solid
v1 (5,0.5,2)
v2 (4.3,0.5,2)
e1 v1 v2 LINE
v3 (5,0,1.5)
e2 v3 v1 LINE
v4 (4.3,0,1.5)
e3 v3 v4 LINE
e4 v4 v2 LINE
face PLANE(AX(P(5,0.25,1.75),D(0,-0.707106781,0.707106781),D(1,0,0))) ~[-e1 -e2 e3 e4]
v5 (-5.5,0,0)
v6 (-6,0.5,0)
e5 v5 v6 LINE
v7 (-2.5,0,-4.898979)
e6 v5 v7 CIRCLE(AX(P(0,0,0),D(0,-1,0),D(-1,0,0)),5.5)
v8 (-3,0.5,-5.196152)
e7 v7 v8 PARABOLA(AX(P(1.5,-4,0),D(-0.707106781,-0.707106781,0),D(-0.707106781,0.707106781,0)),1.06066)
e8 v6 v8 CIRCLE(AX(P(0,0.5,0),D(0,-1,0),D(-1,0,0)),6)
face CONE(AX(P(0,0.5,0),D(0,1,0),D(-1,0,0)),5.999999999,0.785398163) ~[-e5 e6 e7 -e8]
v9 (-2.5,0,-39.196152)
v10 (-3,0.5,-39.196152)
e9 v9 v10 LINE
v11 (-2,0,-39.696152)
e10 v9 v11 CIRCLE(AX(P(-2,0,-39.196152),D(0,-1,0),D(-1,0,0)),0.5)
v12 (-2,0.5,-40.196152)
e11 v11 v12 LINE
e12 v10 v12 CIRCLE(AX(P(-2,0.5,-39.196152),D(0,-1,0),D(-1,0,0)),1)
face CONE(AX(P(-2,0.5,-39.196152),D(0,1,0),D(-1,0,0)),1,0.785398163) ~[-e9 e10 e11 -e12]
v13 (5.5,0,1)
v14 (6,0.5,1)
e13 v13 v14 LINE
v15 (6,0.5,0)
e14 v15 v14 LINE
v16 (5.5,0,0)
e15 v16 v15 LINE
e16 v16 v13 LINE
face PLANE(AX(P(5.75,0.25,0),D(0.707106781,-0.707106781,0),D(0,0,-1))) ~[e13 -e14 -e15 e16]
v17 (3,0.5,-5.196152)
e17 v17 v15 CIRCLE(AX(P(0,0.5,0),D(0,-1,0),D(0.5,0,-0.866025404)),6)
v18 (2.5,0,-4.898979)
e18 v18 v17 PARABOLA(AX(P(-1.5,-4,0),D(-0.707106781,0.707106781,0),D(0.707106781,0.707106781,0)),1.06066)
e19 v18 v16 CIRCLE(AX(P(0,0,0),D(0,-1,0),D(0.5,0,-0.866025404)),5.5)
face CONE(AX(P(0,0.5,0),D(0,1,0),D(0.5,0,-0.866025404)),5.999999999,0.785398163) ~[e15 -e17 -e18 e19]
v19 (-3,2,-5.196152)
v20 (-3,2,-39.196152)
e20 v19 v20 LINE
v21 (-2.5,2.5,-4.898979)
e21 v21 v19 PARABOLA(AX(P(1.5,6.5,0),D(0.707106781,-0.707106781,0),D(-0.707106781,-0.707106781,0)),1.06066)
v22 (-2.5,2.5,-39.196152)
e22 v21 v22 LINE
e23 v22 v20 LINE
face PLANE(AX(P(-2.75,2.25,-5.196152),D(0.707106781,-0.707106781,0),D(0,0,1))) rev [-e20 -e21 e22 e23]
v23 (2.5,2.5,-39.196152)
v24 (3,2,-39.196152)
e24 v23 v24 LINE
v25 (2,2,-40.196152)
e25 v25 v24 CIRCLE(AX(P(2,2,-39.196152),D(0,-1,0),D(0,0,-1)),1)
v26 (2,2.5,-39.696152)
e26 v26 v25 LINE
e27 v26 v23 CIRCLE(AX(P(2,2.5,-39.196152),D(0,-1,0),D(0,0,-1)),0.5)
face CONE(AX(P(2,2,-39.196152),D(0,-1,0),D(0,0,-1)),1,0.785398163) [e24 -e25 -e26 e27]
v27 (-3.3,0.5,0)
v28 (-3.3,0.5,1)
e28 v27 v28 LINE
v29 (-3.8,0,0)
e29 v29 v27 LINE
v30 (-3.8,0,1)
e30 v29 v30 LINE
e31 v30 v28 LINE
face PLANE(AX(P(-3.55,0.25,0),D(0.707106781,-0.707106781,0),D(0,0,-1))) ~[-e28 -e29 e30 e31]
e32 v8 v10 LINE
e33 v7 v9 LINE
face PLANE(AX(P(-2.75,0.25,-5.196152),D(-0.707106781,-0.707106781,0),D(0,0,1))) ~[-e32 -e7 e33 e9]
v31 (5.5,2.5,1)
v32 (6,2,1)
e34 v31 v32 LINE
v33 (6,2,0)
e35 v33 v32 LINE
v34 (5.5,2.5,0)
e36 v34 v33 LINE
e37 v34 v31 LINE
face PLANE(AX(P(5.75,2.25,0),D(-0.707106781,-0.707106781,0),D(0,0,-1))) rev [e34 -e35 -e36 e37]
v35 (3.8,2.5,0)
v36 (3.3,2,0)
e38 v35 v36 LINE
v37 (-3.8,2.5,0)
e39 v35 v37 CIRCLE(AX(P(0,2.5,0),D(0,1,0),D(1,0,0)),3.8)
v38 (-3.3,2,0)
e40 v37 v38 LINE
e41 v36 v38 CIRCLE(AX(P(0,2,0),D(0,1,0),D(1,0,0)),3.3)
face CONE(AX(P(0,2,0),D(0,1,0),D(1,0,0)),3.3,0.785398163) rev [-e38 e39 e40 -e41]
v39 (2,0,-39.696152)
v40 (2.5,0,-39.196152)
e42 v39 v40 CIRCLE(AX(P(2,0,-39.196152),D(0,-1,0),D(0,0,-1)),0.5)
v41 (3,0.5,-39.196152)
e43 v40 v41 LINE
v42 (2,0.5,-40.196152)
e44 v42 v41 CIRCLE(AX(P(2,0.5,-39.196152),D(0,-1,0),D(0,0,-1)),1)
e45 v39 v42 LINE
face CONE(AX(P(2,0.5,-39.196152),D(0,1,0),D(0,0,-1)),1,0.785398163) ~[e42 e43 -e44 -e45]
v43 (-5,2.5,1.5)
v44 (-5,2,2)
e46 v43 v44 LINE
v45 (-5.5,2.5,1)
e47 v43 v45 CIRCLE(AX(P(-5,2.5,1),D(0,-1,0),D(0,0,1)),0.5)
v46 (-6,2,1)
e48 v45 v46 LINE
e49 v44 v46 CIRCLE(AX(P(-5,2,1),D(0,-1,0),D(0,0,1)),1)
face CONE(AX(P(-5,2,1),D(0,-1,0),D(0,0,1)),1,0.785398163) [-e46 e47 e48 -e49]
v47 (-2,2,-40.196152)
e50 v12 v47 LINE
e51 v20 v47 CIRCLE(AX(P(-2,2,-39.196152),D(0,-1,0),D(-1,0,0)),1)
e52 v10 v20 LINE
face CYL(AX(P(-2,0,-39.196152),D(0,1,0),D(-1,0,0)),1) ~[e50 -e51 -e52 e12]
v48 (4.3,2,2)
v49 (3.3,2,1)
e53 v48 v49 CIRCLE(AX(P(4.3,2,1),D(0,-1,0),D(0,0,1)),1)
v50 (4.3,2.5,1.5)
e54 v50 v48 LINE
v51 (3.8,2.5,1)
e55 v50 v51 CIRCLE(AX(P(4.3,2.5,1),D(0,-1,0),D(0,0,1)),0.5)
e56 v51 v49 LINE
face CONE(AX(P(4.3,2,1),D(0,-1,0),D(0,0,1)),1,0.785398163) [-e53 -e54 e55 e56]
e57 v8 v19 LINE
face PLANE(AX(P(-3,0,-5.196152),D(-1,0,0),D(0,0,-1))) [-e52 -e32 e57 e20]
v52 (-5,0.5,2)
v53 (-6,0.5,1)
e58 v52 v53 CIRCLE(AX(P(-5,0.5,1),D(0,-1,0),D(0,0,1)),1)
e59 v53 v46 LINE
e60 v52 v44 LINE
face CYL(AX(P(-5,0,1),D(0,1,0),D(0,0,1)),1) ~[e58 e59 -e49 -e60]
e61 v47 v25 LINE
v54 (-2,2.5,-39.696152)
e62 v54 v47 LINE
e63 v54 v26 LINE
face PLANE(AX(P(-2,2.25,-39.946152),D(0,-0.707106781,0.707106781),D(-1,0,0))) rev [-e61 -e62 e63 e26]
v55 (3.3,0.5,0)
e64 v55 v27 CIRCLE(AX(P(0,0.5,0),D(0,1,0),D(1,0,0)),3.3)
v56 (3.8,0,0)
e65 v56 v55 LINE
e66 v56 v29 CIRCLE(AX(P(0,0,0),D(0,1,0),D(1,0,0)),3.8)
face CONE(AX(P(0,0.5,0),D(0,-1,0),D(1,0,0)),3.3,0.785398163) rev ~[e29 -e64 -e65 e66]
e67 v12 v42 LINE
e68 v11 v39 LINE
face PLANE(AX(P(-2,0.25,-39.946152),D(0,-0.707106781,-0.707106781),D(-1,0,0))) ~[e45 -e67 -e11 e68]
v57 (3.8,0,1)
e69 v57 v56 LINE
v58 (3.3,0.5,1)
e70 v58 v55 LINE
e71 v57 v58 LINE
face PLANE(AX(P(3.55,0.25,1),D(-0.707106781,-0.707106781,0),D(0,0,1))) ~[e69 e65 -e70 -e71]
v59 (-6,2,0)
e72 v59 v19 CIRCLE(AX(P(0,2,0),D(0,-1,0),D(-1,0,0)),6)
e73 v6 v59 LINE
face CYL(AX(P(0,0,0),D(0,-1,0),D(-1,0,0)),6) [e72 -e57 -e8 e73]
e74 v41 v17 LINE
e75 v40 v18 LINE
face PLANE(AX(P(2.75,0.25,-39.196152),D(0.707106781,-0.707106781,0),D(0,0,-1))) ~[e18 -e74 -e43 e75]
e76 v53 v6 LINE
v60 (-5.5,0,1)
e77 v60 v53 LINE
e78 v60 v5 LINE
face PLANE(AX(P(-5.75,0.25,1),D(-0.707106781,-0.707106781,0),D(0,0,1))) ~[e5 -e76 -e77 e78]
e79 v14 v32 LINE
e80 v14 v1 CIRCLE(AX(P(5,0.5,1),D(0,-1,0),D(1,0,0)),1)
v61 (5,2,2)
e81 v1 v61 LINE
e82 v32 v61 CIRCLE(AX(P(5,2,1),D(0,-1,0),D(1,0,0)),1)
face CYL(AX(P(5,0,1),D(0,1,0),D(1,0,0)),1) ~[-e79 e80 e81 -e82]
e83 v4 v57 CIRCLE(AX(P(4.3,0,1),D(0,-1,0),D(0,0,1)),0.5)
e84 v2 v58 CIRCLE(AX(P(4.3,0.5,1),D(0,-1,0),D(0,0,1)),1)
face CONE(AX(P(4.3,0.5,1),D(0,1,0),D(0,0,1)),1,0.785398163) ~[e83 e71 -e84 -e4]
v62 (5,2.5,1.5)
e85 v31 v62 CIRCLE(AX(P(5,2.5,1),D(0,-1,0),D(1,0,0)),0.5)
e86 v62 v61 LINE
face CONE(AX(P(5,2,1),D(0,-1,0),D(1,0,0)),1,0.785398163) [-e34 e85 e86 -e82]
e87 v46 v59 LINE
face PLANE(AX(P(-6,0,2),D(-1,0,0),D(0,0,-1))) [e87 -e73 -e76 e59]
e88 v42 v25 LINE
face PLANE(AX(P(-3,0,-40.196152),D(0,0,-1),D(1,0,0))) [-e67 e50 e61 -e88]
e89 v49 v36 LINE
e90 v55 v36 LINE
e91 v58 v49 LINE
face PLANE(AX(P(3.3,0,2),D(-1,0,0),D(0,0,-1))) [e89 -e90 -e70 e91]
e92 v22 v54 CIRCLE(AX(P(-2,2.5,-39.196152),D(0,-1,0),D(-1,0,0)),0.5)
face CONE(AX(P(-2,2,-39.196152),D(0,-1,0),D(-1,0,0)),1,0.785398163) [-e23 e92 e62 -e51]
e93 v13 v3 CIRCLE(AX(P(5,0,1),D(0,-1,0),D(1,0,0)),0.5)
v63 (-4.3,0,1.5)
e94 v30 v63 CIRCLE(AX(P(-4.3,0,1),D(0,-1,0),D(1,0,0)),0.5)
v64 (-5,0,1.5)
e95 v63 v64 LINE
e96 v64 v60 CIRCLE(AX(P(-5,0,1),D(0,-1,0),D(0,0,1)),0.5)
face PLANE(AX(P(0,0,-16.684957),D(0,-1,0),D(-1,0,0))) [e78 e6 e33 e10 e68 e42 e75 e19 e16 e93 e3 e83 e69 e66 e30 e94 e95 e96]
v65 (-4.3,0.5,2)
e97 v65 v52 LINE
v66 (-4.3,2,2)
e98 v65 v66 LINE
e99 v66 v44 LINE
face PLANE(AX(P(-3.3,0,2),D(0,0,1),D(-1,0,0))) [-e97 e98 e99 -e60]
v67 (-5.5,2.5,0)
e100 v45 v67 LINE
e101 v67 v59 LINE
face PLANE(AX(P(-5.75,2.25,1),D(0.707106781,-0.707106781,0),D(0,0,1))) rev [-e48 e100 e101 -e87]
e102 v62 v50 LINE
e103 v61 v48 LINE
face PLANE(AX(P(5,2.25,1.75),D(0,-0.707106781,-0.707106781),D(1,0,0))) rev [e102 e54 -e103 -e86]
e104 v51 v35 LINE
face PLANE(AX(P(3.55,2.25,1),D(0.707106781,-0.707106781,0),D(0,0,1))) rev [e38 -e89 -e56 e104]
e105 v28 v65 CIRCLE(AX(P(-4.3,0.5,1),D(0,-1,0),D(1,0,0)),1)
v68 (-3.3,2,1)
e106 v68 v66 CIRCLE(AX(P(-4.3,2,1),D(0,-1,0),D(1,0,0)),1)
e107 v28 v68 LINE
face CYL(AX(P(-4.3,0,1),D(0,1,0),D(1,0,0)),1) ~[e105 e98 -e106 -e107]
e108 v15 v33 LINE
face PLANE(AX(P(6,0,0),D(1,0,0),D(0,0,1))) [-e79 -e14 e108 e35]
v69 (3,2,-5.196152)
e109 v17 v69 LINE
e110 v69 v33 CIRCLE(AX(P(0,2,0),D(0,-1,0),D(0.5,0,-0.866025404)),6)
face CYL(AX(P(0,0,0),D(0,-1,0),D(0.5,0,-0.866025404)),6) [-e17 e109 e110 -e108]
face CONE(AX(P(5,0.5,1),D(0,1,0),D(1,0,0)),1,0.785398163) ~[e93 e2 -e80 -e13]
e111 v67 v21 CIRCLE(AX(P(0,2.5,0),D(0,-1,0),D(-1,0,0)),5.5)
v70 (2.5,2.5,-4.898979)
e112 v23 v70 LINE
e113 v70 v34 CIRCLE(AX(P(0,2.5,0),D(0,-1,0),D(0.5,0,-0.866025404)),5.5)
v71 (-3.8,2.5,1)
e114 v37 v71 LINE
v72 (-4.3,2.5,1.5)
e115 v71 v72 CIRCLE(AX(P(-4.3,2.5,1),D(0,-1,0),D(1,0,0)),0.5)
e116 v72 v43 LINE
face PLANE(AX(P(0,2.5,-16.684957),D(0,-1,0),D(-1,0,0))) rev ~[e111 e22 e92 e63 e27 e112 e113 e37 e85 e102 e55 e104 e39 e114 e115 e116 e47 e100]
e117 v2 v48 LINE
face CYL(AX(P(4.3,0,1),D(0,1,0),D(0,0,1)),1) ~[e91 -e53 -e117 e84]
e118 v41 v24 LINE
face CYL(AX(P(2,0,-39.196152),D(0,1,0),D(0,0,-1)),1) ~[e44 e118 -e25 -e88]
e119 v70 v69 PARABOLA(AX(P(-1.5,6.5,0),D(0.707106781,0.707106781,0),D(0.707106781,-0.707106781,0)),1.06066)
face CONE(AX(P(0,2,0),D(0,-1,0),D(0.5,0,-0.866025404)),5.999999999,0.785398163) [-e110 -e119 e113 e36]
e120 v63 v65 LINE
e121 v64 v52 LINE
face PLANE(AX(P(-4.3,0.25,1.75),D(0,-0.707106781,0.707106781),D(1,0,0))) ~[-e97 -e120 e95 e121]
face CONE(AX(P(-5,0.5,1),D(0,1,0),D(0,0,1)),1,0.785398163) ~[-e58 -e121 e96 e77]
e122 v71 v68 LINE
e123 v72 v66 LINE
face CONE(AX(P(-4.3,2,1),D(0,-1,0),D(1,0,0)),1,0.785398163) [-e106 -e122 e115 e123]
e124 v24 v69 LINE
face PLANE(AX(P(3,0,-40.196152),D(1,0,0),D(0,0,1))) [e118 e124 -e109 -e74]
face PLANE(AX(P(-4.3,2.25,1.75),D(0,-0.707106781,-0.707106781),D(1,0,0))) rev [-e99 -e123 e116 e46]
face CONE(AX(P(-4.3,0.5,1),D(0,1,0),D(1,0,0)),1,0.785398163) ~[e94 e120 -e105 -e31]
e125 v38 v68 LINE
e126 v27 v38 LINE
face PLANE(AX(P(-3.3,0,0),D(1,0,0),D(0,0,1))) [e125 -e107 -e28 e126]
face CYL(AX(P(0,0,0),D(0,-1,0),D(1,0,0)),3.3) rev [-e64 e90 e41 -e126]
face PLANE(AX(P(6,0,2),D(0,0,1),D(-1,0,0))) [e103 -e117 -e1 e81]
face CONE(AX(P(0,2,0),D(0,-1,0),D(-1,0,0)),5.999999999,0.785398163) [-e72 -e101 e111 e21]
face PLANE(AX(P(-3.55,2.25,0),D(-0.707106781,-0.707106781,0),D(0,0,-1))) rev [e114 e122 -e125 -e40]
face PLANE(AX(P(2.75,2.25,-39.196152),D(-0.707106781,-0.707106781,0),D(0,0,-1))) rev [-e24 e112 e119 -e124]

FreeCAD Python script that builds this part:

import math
import FreeCAD as App
import Part
import Sketcher


def edges_at(feature, points):
    """Names of the edges that pass closest to the given points."""
    edges = feature.Shape.Edges
    near = lambda p: min(range(len(edges)), key=lambda i: edges[i].distToShape(Part.Vertex(*p))[0])
    return sorted({f"Edge{near(p) + 1}" for p in points})

doc = App.newDocument("Part")
params = doc.addObject("Spreadsheet::Sheet", "Params")
for row, (alias, value) in enumerate([
    ("sketch1_radius", "6 mm"),
    ("sketch1_radius2", "3.3 mm"),
    ("sketch1_width", "6 mm"),
    ("sketch1_height", "2 mm"),
    ("sketch1_height2", "35 mm"),
    ("pad1_length", "2.5 mm"),
    ("fillet_radius", "1 mm"),
    ("chamfer_size", "0.5 mm"),
], start=1):
    params.set(f"A{row}", alias)
    params.set(f"B{row}", "=" + value)
    params.setAlias(f"B{row}", alias)

body = doc.addObject("PartDesign::Body", "Body")

sketch1 = body.newObject("Sketcher::SketchObject", "Sketch")
sketch1.AttachmentSupport = (doc.getObject("XZ_Plane"), [""])
sketch1.MapMode = "FlatFace"
sketch1.addGeometry([
    Part.LineSegment(App.Vector(-3.3, 2, 0), App.Vector(-3.3, 0, 0)),
    Part.ArcOfCircle(Part.Circle(App.Vector(0, 0, 0), App.Vector(0, 0, 1), 3.3), math.radians(180), math.radians(360)),
    Part.LineSegment(App.Vector(3.3, 0, 0), App.Vector(3.3, 2, 0)),
    Part.LineSegment(App.Vector(3.3, 2, 0), App.Vector(6, 2, 0)),
    Part.LineSegment(App.Vector(6, 2, 0), App.Vector(6, 0, 0)),
    Part.ArcOfCircle(Part.Circle(App.Vector(0, 0, 0), App.Vector(0, 0, 1), 6), math.radians(-60), math.radians(0)),
    Part.LineSegment(App.Vector(3, -5.2, 0), App.Vector(3, -40.2, 0)),
    Part.LineSegment(App.Vector(3, -40.2, 0), App.Vector(-3, -40.2, 0)),
    Part.LineSegment(App.Vector(-3, -40.2, 0), App.Vector(-3, -5.2, 0)),
    Part.ArcOfCircle(Part.Circle(App.Vector(0, 0, 0), App.Vector(0, 0, 1), 6), math.radians(180), math.radians(240)),
    Part.LineSegment(App.Vector(-6, 0, 0), App.Vector(-6, 2, 0)),
    Part.LineSegment(App.Vector(-6, 2, 0), App.Vector(-3.3, 2, 0)),
], False)
sketch1.addConstraint([
    Sketcher.Constraint("Tangent", 0, 2, 1, 1),
    Sketcher.Constraint("Tangent", 1, 2, 2, 1),
    Sketcher.Constraint("Coincident", 2, 2, 3, 1),
    Sketcher.Constraint("Coincident", 3, 2, 4, 1),
    Sketcher.Constraint("Tangent", 4, 2, 5, 2),
    Sketcher.Constraint("Coincident", 5, 1, 6, 1),
    Sketcher.Constraint("Coincident", 6, 2, 7, 1),
    Sketcher.Constraint("Coincident", 7, 2, 8, 1),
    Sketcher.Constraint("Coincident", 8, 2, 9, 2),
    Sketcher.Constraint("Tangent", 9, 1, 10, 1),
    Sketcher.Constraint("Coincident", 10, 2, 11, 1),
    Sketcher.Constraint("Coincident", 11, 2, 0, 1),
    Sketcher.Constraint("Vertical", 0),
    Sketcher.Constraint("Vertical", 2),
    Sketcher.Constraint("Horizontal", 3),
    Sketcher.Constraint("Vertical", 4),
    Sketcher.Constraint("Vertical", 6),
    Sketcher.Constraint("Horizontal", 7),
    Sketcher.Constraint("Vertical", 8),
    Sketcher.Constraint("Vertical", 10),
    Sketcher.Constraint("Horizontal", 11),
    Sketcher.Constraint("Coincident", 1, 3, -1, 1),
    Sketcher.Constraint("Coincident", 5, 3, -1, 1),
    Sketcher.Constraint("Coincident", 9, 3, -1, 1),
    Sketcher.Constraint("Equal", 5, 9),
    Sketcher.Constraint("Horizontal", 5, 1, 8, 2),
    Sketcher.Constraint("Horizontal", 3, 2, 10, 2),
    Sketcher.Constraint("Radius", 5, 6.0),
    Sketcher.Constraint("Radius", 1, 3.3),
    Sketcher.Constraint("DistanceX", 7, 2, 7, 1, 6.0),
    Sketcher.Constraint("DistanceY", 0, 2, 0, 1, 2.0),
    Sketcher.Constraint("DistanceY", 6, 2, 6, 1, 35.0),
])
sketch1.setExpression("Constraints[27]", "Params.sketch1_radius")
sketch1.setExpression("Constraints[28]", "Params.sketch1_radius2")
sketch1.setExpression("Constraints[29]", "Params.sketch1_width")
sketch1.setExpression("Constraints[30]", "Params.sketch1_height")
sketch1.setExpression("Constraints[31]", "Params.sketch1_height2")
pad1 = body.newObject("PartDesign::Pad", "Pad")
pad1.Profile = sketch1
pad1.setExpression("Length", "Params.pad1_length")
pad1.Reversed = True
doc.recompute()

fillet = body.newObject("PartDesign::Fillet", "Fillet")
fillet.Base = (pad1, edges_at(pad1, [
    (-3.3, 1.25, 2),
    (-6, 1.25, 2),
    (-3, 1.25, -40.196),
    (3, 1.25, -40.196),
    (6, 1.25, 2),
    (3.3, 1.25, 2),
]))
fillet.setExpression("Radius", "Params.fillet_radius")
doc.recompute()

chamfer = body.newObject("PartDesign::Chamfer", "Chamfer")
chamfer.Base = (fillet, edges_at(fillet, [
    (-6, 0, 0.5),
    (-5.196, 0, -3),
    (3, 0, -22.196),
    (5.196, 0, -3),
    (3.3, 0, 0.5),
    (0, 0, -3.3),
    (5.196, 2.5, -3),
    (3, 2.5, -22.196),
    (-3, 0, -22.196),
    (-3, 2.5, -22.196),
    (-5.196, 2.5, -3),
    (-3.3, 0, 0.5),
    (-4.65, 0, 2),
    (0, 0, -40.196),
    (6, 0, 0.5),
    (4.65, 0, 2),
    (-6, 2.5, 0.5),
    (-5.707, 0, 1.707),
    (-3.593, 0, 1.707),
    (3.593, 0, 1.707),
    (5.707, 0, 1.707),
    (2.707, 0, -39.903),
    (-2.707, 0, -39.903),
    (0, 2.5, -40.196),
    (4.65, 2.5, 2),
    (6, 2.5, 0.5),
    (-4.65, 2.5, 2),
    (-3.3, 2.5, 0.5),
    (-5.707, 2.5, 1.707),
    (-3.593, 2.5, 1.707),
    (0, 2.5, -3.3),
    (3.593, 2.5, 1.707),
    (5.707, 2.5, 1.707),
    (2.707, 2.5, -39.903),
    (-2.707, 2.5, -39.903),
    (3.3, 2.5, 0.5),
]))
chamfer.setExpression("Size", "Params.chamfer_size")

doc.recompute()
